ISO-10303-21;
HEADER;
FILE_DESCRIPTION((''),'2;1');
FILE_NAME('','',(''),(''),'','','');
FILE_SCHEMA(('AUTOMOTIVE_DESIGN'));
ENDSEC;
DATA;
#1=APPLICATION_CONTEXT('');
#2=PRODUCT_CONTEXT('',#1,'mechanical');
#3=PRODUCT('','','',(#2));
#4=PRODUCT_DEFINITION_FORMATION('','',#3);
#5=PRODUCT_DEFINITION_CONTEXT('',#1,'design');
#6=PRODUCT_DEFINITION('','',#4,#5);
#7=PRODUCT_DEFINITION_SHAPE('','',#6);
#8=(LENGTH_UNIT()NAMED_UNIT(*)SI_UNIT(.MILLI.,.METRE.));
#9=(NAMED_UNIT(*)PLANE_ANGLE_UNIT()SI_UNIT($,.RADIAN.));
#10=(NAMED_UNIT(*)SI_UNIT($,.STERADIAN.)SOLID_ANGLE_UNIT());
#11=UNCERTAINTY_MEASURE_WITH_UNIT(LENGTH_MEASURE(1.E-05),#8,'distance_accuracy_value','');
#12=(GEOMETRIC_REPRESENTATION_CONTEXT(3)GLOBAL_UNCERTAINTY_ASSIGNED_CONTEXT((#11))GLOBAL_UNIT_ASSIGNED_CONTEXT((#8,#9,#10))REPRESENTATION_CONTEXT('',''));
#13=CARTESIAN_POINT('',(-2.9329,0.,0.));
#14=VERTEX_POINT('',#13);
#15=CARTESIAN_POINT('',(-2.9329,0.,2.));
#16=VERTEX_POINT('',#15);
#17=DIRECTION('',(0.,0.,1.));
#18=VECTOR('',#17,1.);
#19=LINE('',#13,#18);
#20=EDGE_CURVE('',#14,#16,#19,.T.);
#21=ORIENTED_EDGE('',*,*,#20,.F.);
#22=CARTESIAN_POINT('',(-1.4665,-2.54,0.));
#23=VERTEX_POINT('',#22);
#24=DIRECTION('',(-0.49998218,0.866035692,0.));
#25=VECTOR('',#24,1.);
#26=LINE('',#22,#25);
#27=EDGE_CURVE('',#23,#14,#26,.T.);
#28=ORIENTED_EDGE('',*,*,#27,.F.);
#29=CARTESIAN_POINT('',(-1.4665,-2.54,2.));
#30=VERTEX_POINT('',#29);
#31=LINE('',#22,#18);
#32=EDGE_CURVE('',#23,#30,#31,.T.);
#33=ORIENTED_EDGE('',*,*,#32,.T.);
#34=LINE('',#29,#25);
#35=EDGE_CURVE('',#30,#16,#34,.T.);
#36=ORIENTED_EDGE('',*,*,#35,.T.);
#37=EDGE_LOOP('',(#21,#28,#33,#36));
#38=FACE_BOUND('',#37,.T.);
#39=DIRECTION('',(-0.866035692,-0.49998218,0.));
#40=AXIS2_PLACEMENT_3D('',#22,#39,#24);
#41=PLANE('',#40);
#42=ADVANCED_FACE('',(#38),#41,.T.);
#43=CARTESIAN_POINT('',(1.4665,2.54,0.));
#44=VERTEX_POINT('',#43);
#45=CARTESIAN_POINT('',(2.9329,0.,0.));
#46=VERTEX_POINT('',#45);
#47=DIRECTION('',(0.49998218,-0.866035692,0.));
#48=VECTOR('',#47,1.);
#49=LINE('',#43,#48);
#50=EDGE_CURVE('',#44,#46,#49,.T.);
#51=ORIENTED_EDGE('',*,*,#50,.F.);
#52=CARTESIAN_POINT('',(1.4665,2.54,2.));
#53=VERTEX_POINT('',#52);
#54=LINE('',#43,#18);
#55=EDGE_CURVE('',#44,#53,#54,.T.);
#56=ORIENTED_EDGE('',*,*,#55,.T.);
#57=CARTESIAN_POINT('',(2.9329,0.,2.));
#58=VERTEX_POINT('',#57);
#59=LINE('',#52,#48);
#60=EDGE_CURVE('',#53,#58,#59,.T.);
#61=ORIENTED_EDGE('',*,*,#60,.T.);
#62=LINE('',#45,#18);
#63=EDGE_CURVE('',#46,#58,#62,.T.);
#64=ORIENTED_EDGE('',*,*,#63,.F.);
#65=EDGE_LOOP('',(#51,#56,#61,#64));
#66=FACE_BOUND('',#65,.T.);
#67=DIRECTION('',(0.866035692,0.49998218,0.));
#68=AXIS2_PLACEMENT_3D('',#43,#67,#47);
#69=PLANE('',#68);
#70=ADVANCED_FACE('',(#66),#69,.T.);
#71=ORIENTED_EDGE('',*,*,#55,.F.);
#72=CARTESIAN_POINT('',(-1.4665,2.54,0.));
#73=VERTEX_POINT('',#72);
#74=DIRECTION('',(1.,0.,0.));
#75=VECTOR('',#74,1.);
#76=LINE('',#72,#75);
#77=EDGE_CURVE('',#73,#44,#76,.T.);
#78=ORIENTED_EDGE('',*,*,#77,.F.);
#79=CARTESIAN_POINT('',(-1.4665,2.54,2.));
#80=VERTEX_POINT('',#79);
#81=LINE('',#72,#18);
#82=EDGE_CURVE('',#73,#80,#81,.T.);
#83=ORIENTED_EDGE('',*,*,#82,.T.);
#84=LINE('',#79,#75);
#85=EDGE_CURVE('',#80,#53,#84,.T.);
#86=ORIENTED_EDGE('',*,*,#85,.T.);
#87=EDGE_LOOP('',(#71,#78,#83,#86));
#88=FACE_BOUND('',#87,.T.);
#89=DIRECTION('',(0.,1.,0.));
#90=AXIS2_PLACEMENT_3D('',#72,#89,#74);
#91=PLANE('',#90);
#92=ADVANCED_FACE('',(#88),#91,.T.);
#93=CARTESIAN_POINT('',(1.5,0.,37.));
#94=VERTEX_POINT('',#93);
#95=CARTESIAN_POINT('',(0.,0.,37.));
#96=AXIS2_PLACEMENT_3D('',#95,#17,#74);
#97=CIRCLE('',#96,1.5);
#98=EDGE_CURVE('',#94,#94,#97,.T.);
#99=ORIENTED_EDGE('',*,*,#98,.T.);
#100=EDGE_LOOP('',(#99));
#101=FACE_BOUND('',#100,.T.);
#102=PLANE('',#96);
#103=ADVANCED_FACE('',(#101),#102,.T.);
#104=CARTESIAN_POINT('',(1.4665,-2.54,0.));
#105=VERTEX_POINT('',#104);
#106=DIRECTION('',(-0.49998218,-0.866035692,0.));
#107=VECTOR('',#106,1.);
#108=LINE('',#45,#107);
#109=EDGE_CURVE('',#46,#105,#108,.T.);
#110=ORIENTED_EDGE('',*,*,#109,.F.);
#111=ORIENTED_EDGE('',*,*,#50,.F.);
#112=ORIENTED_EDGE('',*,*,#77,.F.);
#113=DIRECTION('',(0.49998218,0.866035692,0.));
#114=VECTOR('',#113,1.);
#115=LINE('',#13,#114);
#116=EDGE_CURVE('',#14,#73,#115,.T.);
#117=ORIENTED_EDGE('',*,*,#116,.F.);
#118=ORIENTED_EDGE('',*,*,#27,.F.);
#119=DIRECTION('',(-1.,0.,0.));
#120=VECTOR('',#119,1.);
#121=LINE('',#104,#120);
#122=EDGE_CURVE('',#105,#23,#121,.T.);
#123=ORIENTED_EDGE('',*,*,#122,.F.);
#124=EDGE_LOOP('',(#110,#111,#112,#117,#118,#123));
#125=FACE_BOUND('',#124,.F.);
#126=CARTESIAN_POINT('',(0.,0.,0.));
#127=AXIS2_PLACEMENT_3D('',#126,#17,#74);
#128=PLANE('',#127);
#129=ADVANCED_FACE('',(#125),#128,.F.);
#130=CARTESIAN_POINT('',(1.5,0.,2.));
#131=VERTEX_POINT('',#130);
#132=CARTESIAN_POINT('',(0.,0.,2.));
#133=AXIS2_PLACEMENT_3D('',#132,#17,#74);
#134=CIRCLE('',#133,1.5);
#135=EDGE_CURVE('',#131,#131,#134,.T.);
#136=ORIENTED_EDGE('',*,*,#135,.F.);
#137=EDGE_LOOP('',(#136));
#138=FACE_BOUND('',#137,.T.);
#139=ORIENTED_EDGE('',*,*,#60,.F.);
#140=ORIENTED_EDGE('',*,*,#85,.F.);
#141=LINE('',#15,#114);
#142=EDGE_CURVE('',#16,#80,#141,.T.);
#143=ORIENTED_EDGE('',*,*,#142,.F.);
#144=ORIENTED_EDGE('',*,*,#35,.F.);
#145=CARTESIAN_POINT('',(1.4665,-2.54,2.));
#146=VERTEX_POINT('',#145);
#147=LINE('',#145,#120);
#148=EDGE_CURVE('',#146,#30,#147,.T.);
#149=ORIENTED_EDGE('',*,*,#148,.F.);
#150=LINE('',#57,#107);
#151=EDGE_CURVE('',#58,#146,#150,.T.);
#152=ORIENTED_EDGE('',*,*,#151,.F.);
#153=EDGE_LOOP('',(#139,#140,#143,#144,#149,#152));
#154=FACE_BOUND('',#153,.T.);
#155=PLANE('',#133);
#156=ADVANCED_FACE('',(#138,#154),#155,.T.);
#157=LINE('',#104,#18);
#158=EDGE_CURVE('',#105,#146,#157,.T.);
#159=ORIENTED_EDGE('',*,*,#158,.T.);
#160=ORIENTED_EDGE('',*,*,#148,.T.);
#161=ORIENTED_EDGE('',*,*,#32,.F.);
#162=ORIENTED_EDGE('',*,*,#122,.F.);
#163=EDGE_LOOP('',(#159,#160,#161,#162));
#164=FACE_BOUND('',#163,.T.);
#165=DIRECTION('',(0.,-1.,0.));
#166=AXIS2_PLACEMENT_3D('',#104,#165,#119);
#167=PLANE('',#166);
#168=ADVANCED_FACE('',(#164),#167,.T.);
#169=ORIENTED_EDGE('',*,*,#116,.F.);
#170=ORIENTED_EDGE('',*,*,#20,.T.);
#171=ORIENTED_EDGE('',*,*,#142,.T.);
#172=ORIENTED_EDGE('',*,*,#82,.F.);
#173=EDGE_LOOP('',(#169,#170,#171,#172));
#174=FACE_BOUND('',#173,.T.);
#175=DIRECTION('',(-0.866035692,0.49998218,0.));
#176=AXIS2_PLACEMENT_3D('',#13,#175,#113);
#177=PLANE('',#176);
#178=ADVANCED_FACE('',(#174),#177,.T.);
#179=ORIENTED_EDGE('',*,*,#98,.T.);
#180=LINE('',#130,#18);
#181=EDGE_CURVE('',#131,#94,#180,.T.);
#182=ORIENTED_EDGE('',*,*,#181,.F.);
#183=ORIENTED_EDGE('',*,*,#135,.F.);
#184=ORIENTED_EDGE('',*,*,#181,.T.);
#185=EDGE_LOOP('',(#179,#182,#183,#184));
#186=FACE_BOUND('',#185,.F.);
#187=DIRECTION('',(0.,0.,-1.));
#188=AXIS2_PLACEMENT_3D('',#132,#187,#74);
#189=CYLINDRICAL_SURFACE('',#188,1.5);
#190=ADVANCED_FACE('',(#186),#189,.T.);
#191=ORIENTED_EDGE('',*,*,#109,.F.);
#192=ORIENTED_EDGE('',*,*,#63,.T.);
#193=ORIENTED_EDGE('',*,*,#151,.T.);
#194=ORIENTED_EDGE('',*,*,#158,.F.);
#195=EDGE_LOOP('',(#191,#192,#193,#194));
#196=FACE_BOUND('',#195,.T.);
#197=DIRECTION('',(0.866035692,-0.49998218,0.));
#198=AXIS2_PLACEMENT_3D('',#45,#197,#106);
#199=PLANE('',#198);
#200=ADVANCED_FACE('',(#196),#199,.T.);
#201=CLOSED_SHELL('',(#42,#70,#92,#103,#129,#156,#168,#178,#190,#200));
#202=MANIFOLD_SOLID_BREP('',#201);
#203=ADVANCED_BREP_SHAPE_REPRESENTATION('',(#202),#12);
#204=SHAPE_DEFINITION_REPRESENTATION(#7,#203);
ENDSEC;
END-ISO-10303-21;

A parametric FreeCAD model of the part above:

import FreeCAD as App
import Part
import Sketcher
from FreeCAD import Vector
Q = App.Units.Quantity


def add_polygon(sketch, points):
    """Adds a closed chain of lines whose ends are joined by coincident constraints."""
    first, n = sketch.GeometryCount, len(points)
    for a, b in zip(points, points[1:] + points[:1]):
        sketch.addGeometry(Part.LineSegment(App.Vector(*a, 0), App.Vector(*b, 0)), False)
    for i in range(n):
        sketch.addConstraint(Sketcher.Constraint("Coincident", first + i, 2, first + (i + 1) % n, 1))

doc = App.newDocument("Part")
body = doc.addObject("PartDesign::Body", "Body")

# Sketch on XY plane
sketch1 = doc.addObject("Sketcher::SketchObject", "Sketch")
body.addObject(sketch1)
sketch1.AttachmentSupport = (doc.XY_Plane, [""])
sketch1.MapMode = "FlatFace"
add_polygon(sketch1, [(-1.5, -2.5), (1.5, -2.5), (2.9, 0), (1.5, 2.5), (-1.5, 2.5), (-2.9, 0)])  # lines 0-5
sketch1.addConstraint([
    Sketcher.Constraint("Horizontal", 0),
    Sketcher.Constraint("Horizontal", 3),
    Sketcher.Constraint("Symmetric", 0, 2, 3, 2, -1, 1),
    Sketcher.Constraint("Symmetric", 1, 2, 4, 2, -1, 1),
    Sketcher.Constraint("PointOnObject", 1, 2, -1),
    Sketcher.Constraint("Parallel", 2, 5),
    Sketcher.Constraint("Vertical", 0, 2, 2, 2),
    Sketcher.Constraint("DistanceY", 0, 2, -1, 1, 2.54),
    Sketcher.Constraint("Angle", 1, Q("60.0012 deg")),
    Sketcher.Constraint("DistanceX", 0, 1, 0, 2, 2.933),
])
pad1 = doc.addObject("PartDesign::Pad", "Pad")
body.addObject(pad1)
pad1.Profile = sketch1
pad1.Length = 2

# Sketch on XY plane
sketch2 = doc.addObject("Sketcher::SketchObject", "Sketch001")
body.addObject(sketch2)
sketch2.AttachmentSupport = (doc.XY_Plane, [""])
sketch2.MapMode = "FlatFace"
sketch2.AttachmentOffset = App.Placement(Vector(0, 0, 2), App.Rotation())
sketch2.addGeometry(Part.Circle(Vector(0, 0, 0), Vector(0, 0, 1), 1.5), False)
sketch2.addConstraint([
    Sketcher.Constraint("Coincident", 0, 3, -1, 1),
    Sketcher.Constraint("Diameter", 0, 3.0),
])
pad2 = doc.addObject("PartDesign::Pad", "Pad001")
body.addObject(pad2)
pad2.Profile = sketch2
pad2.Length = 35

doc.recompute()
